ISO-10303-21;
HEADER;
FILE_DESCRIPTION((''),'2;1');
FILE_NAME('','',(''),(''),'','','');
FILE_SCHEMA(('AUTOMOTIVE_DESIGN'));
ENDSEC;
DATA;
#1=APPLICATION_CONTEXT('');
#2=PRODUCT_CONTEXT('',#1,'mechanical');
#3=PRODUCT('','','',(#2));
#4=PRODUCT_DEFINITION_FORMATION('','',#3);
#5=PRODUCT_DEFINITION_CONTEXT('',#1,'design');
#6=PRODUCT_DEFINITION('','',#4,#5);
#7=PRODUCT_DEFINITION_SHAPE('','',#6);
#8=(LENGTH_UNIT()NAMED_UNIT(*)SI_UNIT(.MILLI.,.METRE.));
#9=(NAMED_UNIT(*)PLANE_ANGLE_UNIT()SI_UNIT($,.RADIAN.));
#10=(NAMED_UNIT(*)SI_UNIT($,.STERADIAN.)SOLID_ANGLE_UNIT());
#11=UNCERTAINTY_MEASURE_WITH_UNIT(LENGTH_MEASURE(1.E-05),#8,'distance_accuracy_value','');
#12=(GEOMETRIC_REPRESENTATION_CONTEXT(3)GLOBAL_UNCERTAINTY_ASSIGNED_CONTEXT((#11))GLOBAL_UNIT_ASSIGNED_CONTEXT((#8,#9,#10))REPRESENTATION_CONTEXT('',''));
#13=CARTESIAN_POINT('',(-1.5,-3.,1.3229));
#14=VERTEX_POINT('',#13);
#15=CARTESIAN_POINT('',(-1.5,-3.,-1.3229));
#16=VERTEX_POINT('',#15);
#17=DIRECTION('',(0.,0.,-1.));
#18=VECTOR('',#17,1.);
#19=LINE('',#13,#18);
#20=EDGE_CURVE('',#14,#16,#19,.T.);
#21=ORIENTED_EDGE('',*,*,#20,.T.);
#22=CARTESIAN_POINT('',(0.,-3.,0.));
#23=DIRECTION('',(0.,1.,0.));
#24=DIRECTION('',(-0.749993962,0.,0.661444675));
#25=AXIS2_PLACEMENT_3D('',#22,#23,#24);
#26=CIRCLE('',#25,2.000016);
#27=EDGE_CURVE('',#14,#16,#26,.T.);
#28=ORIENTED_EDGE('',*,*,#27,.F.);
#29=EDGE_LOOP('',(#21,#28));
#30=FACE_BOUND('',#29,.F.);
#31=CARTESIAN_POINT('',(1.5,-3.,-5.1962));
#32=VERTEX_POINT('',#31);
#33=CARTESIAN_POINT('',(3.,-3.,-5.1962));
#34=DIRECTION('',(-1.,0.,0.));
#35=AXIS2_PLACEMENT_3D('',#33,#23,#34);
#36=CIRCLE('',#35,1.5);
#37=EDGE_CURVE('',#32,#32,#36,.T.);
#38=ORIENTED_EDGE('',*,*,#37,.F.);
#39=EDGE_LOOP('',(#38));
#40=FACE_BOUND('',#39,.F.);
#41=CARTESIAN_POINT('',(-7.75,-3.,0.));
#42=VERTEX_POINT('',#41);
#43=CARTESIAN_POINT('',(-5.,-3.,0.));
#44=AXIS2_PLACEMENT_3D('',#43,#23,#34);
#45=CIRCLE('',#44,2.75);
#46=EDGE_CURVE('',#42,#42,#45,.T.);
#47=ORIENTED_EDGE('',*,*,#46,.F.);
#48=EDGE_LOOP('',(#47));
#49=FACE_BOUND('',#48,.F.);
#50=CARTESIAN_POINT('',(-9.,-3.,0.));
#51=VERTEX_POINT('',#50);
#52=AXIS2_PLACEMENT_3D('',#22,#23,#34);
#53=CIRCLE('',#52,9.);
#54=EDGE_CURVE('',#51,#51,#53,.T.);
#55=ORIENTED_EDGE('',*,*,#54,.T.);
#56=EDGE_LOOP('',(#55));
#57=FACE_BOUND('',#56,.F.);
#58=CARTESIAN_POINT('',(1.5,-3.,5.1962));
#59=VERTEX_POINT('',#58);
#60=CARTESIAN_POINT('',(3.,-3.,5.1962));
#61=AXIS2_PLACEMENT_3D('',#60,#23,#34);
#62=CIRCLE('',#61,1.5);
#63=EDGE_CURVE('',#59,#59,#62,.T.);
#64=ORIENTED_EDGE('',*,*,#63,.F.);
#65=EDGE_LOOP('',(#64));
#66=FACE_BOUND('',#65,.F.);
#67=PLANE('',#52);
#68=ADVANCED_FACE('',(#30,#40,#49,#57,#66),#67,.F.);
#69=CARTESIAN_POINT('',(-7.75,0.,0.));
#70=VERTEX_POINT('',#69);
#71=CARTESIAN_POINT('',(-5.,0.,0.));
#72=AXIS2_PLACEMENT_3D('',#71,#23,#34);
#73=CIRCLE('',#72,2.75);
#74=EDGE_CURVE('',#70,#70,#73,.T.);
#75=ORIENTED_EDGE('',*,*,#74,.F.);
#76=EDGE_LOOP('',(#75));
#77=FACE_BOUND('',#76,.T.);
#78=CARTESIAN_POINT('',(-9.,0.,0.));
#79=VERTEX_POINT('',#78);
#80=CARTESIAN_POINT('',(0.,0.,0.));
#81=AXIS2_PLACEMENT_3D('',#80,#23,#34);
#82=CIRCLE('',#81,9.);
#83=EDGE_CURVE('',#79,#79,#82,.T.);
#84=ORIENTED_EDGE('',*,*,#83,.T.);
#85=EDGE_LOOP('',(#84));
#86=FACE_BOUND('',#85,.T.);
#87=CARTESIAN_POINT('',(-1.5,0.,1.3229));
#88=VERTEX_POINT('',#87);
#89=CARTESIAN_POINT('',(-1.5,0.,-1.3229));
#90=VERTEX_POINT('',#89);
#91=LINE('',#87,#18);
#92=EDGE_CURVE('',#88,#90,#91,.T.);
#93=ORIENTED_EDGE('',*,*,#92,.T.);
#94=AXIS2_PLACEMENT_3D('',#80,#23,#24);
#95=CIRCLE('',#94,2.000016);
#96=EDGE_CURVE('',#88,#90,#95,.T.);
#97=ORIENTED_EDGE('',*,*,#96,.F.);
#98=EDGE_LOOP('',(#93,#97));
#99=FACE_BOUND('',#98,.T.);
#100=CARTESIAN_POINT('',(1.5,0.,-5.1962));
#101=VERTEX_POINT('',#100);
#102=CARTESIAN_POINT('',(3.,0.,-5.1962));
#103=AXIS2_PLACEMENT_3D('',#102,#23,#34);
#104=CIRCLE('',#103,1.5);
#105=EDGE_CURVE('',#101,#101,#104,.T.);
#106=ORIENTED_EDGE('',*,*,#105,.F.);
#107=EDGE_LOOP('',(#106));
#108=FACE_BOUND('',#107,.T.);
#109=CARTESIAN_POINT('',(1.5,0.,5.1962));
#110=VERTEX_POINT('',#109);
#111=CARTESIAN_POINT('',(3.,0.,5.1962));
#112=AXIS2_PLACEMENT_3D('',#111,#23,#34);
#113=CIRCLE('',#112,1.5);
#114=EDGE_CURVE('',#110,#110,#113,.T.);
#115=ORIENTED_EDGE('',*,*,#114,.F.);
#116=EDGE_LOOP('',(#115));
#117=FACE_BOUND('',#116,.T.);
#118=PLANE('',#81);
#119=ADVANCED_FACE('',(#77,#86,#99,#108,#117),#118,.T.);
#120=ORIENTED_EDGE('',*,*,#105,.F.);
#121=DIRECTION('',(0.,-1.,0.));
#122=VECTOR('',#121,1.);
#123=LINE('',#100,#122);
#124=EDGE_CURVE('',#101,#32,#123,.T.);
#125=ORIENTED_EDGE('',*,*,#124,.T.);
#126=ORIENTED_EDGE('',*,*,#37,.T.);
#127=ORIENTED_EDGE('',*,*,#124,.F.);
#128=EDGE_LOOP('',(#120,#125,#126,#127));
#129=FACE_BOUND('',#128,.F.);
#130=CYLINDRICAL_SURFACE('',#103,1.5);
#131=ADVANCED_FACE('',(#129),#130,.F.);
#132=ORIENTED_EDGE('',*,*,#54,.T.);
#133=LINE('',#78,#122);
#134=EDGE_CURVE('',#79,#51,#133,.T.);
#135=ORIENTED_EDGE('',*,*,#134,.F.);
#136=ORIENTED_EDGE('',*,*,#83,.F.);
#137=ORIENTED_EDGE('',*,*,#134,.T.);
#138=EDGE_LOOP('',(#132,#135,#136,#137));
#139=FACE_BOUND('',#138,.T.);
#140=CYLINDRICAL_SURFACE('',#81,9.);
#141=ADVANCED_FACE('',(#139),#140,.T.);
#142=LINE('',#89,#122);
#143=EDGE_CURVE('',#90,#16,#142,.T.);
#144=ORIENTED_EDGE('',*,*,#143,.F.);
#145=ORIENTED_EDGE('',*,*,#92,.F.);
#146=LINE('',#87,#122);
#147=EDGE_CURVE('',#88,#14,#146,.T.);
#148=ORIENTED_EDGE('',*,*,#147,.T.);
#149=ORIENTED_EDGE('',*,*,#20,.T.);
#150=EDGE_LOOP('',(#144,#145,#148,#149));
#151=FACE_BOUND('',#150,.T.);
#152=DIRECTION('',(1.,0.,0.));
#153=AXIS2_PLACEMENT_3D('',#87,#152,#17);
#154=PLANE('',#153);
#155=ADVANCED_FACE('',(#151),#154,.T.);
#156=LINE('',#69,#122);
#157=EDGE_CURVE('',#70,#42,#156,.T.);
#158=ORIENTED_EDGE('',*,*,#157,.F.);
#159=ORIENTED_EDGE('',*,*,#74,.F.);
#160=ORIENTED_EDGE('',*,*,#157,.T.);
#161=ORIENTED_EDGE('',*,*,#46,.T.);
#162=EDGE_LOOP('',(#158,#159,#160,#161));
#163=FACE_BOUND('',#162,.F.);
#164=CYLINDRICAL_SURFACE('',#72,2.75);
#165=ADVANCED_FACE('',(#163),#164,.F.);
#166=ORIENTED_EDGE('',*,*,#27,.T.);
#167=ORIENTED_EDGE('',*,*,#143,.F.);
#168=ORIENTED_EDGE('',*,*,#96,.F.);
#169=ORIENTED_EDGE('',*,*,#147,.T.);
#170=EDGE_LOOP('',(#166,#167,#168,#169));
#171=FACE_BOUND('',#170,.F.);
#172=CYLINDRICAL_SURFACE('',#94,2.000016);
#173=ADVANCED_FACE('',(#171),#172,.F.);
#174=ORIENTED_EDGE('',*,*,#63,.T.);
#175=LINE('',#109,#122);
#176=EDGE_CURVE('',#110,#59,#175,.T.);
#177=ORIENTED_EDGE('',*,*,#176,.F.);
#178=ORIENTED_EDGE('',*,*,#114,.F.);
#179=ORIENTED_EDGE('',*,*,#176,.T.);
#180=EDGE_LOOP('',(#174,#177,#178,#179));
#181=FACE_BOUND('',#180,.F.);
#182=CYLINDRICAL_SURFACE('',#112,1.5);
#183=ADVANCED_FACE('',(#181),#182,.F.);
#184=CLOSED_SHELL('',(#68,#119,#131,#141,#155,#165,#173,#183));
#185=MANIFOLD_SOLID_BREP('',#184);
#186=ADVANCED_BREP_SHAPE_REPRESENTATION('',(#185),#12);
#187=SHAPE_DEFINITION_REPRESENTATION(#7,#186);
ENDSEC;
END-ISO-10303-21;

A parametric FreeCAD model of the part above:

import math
import FreeCAD as App
import Part
import Sketcher

V = App.Vector

doc = App.newDocument("Part")
params = doc.addObject("Spreadsheet::Sheet", "Params")
for row, (alias, value) in enumerate([
    ("sketch1_diameter", "18 mm"),
    ("sketch1_diameter2", "3 mm"),
    ("sketch1_radius", "2 mm"),
    ("sketch1_diameter3", "5.5 mm"),
    ("pad1_length", "3 mm"),
], start=1):
    params.set(f"A{row}", alias)
    params.set(f"B{row}", "=" + value)
    params.setAlias(f"B{row}", alias)

body = doc.addObject("PartDesign::Body", "Body")

sketch1 = doc.addObject("Sketcher::SketchObject", "Sketch")
body.addObject(sketch1)
sketch1.AttachmentSupport = (doc.XZ_Plane, [""])
sketch1.MapMode = "FlatFace"
sketch1.addGeometry([
    Part.Circle(V(0, 0, 0), V(0, 0, 1), 9),
    Part.Circle(V(3, -5.1962, 0), V(0, 0, 1), 1.5),
    Part.ArcOfCircle(Part.Circle(V(0, 0, 0), V(0, 0, 1), 2.000016), math.radians(-138.589855), math.radians(138.589855)),
    Part.LineSegment(V(-1.5, 1.3229, 0), V(-1.5, -1.3229, 0)),
    Part.Circle(V(3, 5.1962, 0), V(0, 0, 1), 1.5),
    Part.Circle(V(-5, 0, 0), V(0, 0, 1), 2.75),
], False)
sketch1.addConstraint([
    Sketcher.Constraint("Coincident", 2, 1, 3, 2),
    Sketcher.Constraint("Coincident", 3, 1, 2, 2),
    Sketcher.Constraint("Vertical", 3),
    Sketcher.Constraint("Coincident", 0, 3, -1, 1),
    Sketcher.Constraint("Coincident", 2, 3, -1, 1),
    Sketcher.Constraint("Equal", 1, 4),
    Sketcher.Constraint("Symmetric", 1, 3, 4, 3, -1),
    Sketcher.Constraint("PointOnObject", 5, 3, -1),
    Sketcher.Constraint("Diameter", 0, 18.0),
    Sketcher.Constraint("Diameter", 1, 3.0),
    Sketcher.Constraint("Radius", 2, 2.0),
    Sketcher.Constraint("Diameter", 5, 5.5),
    Sketcher.Constraint("DistanceX", -1, 1, 1, 3, 3.0),
    Sketcher.Constraint("DistanceX", 5, 3, -1, 1, 5.0),
    Sketcher.Constraint("DistanceX", 2, 1, -1, 1, 1.5),
    Sketcher.Constraint("DistanceY", 2, 1, 4, 3, 6.519),
])
sketch1.setExpression("Constraints[8]", "Params.sketch1_diameter")
sketch1.setExpression("Constraints[9]", "Params.sketch1_diameter2")
sketch1.setExpression("Constraints[10]", "Params.sketch1_radius")
sketch1.setExpression("Constraints[11]", "Params.sketch1_diameter3")
pad1 = doc.addObject("PartDesign::Pad", "Pad")
body.addObject(pad1)
pad1.Profile = sketch1
pad1.setExpression("Length", "Params.pad1_length")

doc.recompute()
